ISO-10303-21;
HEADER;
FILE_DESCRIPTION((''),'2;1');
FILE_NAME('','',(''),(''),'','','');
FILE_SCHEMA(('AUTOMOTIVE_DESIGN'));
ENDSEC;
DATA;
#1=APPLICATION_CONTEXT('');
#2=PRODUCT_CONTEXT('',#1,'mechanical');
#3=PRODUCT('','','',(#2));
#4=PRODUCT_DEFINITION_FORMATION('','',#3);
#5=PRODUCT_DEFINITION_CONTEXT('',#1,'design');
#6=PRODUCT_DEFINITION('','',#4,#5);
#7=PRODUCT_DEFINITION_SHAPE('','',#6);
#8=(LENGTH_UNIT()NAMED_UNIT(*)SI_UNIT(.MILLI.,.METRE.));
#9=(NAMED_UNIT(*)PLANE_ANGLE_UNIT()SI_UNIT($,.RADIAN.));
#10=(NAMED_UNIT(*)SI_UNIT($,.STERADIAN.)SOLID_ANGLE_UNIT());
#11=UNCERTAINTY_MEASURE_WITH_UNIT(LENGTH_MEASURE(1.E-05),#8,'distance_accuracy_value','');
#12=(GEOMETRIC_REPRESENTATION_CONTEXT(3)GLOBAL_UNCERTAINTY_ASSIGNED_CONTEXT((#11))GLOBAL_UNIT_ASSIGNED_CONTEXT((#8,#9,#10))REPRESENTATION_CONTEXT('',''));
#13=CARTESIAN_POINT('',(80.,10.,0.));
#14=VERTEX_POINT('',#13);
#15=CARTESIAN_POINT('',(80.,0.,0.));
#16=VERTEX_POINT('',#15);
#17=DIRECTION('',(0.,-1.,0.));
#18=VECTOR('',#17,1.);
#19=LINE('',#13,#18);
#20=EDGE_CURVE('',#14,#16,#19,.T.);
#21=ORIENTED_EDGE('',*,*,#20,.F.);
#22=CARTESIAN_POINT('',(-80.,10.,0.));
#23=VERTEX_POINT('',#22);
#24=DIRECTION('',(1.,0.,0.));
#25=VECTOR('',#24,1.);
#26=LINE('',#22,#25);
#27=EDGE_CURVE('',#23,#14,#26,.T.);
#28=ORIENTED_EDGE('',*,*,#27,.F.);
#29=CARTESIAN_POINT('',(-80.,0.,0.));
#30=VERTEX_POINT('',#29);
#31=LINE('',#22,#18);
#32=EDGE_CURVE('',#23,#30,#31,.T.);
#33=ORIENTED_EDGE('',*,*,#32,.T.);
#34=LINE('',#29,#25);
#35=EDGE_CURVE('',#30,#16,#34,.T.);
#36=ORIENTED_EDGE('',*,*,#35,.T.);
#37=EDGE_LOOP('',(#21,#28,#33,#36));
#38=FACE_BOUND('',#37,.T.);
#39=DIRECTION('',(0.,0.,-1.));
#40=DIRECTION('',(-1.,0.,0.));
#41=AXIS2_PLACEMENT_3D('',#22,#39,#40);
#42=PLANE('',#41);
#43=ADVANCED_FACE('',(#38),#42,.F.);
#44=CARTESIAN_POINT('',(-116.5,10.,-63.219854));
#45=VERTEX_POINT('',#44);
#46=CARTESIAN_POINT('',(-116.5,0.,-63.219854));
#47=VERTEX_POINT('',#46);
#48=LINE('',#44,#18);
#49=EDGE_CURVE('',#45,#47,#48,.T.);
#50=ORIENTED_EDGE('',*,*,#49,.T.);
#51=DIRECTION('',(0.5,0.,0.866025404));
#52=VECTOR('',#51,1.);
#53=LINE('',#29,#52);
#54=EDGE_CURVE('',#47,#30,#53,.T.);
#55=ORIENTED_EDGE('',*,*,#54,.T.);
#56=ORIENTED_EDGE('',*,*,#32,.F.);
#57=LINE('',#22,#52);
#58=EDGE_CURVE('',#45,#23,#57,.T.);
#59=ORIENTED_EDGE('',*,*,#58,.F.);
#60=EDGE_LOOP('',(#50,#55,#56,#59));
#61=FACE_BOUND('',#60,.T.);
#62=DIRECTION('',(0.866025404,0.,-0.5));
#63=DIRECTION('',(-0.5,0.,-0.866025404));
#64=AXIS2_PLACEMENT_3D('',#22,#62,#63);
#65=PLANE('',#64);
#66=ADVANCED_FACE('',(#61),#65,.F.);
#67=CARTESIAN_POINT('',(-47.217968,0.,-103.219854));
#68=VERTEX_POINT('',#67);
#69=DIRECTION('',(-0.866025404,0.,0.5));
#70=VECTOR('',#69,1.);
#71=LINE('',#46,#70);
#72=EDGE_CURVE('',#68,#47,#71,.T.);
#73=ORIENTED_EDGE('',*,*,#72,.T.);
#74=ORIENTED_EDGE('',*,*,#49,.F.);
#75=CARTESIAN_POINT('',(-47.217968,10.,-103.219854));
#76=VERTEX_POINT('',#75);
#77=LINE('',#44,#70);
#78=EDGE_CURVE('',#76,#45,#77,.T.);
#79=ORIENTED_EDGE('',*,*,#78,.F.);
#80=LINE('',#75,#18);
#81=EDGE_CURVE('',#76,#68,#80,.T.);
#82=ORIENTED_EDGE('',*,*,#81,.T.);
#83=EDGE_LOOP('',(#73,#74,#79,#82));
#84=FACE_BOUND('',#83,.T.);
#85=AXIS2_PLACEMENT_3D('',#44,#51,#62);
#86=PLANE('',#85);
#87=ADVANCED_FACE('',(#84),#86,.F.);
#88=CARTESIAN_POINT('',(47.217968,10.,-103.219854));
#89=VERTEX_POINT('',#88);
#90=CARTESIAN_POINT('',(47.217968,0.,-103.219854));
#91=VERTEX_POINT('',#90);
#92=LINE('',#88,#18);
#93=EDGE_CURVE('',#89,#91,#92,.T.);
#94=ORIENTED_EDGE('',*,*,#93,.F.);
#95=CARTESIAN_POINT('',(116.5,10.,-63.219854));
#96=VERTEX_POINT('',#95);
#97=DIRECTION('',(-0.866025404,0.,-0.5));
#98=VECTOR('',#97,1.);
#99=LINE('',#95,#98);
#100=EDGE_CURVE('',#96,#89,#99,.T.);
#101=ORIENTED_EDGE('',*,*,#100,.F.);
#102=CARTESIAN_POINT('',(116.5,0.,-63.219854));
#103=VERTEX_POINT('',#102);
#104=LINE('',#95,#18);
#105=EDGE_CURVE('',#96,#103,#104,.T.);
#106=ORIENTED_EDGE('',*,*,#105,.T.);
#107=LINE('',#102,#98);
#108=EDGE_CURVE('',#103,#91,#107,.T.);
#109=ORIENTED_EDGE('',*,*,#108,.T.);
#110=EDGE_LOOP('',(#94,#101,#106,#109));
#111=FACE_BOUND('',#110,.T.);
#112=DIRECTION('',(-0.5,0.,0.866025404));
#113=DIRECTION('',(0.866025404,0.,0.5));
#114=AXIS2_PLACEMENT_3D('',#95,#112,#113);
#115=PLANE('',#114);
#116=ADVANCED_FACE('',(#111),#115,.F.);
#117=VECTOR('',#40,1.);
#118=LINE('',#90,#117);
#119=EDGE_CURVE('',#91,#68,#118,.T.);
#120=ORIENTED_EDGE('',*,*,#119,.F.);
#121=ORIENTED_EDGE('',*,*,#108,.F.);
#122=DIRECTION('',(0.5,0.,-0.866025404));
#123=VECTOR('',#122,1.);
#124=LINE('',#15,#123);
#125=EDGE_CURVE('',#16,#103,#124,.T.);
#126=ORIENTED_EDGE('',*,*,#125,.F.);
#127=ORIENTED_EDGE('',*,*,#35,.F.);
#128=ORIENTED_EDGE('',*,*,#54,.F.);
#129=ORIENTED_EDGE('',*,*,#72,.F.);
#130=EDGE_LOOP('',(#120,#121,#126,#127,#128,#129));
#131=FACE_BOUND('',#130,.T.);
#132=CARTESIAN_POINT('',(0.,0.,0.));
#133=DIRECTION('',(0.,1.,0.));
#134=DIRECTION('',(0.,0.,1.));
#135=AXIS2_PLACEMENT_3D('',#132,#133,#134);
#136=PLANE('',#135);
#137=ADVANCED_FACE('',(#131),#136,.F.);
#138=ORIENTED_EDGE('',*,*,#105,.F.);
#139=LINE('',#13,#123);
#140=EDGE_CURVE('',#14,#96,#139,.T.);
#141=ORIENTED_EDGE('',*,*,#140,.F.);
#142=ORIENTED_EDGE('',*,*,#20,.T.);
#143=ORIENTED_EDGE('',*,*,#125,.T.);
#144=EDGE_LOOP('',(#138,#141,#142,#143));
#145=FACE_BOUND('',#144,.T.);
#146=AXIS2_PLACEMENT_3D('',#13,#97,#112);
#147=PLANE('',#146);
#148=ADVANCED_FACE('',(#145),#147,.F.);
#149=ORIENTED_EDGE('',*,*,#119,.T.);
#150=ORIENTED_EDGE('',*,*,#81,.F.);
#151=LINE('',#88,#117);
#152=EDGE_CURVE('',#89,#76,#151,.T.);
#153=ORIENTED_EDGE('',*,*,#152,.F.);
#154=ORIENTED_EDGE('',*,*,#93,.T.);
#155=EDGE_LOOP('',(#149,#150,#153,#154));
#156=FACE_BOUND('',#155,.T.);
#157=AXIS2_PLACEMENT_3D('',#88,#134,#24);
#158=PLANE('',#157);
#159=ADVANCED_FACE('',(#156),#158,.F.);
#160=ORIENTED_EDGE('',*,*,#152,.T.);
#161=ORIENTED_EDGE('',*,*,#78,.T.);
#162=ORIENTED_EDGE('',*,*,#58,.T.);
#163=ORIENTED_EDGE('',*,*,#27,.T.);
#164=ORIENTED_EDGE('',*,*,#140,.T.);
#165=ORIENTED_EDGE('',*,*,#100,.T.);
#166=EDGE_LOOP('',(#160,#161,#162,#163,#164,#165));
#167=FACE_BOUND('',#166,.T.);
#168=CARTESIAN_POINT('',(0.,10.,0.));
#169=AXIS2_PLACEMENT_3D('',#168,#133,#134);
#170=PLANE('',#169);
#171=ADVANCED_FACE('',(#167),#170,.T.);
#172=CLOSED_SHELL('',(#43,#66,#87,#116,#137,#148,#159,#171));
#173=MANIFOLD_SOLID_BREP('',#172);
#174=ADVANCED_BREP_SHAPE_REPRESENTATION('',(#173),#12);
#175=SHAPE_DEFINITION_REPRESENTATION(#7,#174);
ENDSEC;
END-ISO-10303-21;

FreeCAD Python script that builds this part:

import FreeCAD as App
import Part
import Sketcher
from FreeCAD import Vector
Q = App.Units.Quantity

doc = App.newDocument("Part")
params = doc.addObject("Spreadsheet::Sheet", "Params")
for row, (alias, value) in enumerate([
    ("sketch1_width", "160 mm"),
    ("sketch1_length", "73 mm"),
    ("sketch1_length2", "80 mm"),
    ("pad1_length", "10 mm"),
], start=1):
    params.set(f"A{row}", alias)
    params.set(f"B{row}", "=" + value)
    params.setAlias(f"B{row}", alias)

body = doc.addObject("PartDesign::Body", "Body")

# Sketch on XZ plane
sketch1 = body.newObject("Sketcher::SketchObject", "Sketch")
sketch1.AttachmentSupport = (doc.getObject("XZ_Plane"), [""])
sketch1.MapMode = "FlatFace"
sketch1.addGeometry(Part.LineSegment(Vector(-80, 0, 0), Vector(80, 0, 0)), False)
sketch1.addGeometry(Part.LineSegment(Vector(80, 0, 0), Vector(116, -63, 0)), False)
sketch1.addGeometry(Part.LineSegment(Vector(116, -63, 0), Vector(47, -103, 0)), False)
sketch1.addGeometry(Part.LineSegment(Vector(47, -103, 0), Vector(-47, -103, 0)), False)
sketch1.addGeometry(Part.LineSegment(Vector(-47, -103, 0), Vector(-116, -63, 0)), False)
sketch1.addGeometry(Part.LineSegment(Vector(-116, -63, 0), Vector(-80, 0, 0)), False)
sketch1.addConstraint(Sketcher.Constraint("Coincident", 0, 2, 1, 1))
sketch1.addConstraint(Sketcher.Constraint("Coincident", 1, 2, 2, 1))
sketch1.addConstraint(Sketcher.Constraint("Coincident", 2, 2, 3, 1))
sketch1.addConstraint(Sketcher.Constraint("Coincident", 3, 2, 4, 1))
sketch1.addConstraint(Sketcher.Constraint("Coincident", 4, 2, 5, 1))
sketch1.addConstraint(Sketcher.Constraint("Coincident", 5, 2, 0, 1))
sketch1.addConstraint(Sketcher.Constraint("Horizontal", 0))
sketch1.addConstraint(Sketcher.Constraint("Horizontal", 3))
sketch1.addConstraint(Sketcher.Constraint("Symmetric", 0, 2, 5, 2, -1, 1))
sketch1.addConstraint(Sketcher.Constraint("Symmetric", 1, 2, 4, 2, -2))
sketch1.addConstraint(Sketcher.Constraint("Perpendicular", 1, 2))
sketch1.addConstraint(Sketcher.Constraint("Perpendicular", 4, 5))
sketch1.addConstraint(Sketcher.Constraint("DistanceX", 0, 1, 0, 2, 160.0))
sketch1.addConstraint(Sketcher.Constraint("Angle", 1, Q("-60 deg")))
sketch1.addConstraint(Sketcher.Constraint("Distance", 1, 73.0))
sketch1.addConstraint(Sketcher.Constraint("Distance", 2, 80.0))
sketch1.setExpression("Constraints[12]", "Params.sketch1_width")
sketch1.setExpression("Constraints[14]", "Params.sketch1_length")
sketch1.setExpression("Constraints[15]", "Params.sketch1_length2")
pad1 = body.newObject("PartDesign::Pad", "Pad")
pad1.Profile = sketch1
pad1.setExpression("Length", "Params.pad1_length")
pad1.Reversed = True

doc.recompute()
